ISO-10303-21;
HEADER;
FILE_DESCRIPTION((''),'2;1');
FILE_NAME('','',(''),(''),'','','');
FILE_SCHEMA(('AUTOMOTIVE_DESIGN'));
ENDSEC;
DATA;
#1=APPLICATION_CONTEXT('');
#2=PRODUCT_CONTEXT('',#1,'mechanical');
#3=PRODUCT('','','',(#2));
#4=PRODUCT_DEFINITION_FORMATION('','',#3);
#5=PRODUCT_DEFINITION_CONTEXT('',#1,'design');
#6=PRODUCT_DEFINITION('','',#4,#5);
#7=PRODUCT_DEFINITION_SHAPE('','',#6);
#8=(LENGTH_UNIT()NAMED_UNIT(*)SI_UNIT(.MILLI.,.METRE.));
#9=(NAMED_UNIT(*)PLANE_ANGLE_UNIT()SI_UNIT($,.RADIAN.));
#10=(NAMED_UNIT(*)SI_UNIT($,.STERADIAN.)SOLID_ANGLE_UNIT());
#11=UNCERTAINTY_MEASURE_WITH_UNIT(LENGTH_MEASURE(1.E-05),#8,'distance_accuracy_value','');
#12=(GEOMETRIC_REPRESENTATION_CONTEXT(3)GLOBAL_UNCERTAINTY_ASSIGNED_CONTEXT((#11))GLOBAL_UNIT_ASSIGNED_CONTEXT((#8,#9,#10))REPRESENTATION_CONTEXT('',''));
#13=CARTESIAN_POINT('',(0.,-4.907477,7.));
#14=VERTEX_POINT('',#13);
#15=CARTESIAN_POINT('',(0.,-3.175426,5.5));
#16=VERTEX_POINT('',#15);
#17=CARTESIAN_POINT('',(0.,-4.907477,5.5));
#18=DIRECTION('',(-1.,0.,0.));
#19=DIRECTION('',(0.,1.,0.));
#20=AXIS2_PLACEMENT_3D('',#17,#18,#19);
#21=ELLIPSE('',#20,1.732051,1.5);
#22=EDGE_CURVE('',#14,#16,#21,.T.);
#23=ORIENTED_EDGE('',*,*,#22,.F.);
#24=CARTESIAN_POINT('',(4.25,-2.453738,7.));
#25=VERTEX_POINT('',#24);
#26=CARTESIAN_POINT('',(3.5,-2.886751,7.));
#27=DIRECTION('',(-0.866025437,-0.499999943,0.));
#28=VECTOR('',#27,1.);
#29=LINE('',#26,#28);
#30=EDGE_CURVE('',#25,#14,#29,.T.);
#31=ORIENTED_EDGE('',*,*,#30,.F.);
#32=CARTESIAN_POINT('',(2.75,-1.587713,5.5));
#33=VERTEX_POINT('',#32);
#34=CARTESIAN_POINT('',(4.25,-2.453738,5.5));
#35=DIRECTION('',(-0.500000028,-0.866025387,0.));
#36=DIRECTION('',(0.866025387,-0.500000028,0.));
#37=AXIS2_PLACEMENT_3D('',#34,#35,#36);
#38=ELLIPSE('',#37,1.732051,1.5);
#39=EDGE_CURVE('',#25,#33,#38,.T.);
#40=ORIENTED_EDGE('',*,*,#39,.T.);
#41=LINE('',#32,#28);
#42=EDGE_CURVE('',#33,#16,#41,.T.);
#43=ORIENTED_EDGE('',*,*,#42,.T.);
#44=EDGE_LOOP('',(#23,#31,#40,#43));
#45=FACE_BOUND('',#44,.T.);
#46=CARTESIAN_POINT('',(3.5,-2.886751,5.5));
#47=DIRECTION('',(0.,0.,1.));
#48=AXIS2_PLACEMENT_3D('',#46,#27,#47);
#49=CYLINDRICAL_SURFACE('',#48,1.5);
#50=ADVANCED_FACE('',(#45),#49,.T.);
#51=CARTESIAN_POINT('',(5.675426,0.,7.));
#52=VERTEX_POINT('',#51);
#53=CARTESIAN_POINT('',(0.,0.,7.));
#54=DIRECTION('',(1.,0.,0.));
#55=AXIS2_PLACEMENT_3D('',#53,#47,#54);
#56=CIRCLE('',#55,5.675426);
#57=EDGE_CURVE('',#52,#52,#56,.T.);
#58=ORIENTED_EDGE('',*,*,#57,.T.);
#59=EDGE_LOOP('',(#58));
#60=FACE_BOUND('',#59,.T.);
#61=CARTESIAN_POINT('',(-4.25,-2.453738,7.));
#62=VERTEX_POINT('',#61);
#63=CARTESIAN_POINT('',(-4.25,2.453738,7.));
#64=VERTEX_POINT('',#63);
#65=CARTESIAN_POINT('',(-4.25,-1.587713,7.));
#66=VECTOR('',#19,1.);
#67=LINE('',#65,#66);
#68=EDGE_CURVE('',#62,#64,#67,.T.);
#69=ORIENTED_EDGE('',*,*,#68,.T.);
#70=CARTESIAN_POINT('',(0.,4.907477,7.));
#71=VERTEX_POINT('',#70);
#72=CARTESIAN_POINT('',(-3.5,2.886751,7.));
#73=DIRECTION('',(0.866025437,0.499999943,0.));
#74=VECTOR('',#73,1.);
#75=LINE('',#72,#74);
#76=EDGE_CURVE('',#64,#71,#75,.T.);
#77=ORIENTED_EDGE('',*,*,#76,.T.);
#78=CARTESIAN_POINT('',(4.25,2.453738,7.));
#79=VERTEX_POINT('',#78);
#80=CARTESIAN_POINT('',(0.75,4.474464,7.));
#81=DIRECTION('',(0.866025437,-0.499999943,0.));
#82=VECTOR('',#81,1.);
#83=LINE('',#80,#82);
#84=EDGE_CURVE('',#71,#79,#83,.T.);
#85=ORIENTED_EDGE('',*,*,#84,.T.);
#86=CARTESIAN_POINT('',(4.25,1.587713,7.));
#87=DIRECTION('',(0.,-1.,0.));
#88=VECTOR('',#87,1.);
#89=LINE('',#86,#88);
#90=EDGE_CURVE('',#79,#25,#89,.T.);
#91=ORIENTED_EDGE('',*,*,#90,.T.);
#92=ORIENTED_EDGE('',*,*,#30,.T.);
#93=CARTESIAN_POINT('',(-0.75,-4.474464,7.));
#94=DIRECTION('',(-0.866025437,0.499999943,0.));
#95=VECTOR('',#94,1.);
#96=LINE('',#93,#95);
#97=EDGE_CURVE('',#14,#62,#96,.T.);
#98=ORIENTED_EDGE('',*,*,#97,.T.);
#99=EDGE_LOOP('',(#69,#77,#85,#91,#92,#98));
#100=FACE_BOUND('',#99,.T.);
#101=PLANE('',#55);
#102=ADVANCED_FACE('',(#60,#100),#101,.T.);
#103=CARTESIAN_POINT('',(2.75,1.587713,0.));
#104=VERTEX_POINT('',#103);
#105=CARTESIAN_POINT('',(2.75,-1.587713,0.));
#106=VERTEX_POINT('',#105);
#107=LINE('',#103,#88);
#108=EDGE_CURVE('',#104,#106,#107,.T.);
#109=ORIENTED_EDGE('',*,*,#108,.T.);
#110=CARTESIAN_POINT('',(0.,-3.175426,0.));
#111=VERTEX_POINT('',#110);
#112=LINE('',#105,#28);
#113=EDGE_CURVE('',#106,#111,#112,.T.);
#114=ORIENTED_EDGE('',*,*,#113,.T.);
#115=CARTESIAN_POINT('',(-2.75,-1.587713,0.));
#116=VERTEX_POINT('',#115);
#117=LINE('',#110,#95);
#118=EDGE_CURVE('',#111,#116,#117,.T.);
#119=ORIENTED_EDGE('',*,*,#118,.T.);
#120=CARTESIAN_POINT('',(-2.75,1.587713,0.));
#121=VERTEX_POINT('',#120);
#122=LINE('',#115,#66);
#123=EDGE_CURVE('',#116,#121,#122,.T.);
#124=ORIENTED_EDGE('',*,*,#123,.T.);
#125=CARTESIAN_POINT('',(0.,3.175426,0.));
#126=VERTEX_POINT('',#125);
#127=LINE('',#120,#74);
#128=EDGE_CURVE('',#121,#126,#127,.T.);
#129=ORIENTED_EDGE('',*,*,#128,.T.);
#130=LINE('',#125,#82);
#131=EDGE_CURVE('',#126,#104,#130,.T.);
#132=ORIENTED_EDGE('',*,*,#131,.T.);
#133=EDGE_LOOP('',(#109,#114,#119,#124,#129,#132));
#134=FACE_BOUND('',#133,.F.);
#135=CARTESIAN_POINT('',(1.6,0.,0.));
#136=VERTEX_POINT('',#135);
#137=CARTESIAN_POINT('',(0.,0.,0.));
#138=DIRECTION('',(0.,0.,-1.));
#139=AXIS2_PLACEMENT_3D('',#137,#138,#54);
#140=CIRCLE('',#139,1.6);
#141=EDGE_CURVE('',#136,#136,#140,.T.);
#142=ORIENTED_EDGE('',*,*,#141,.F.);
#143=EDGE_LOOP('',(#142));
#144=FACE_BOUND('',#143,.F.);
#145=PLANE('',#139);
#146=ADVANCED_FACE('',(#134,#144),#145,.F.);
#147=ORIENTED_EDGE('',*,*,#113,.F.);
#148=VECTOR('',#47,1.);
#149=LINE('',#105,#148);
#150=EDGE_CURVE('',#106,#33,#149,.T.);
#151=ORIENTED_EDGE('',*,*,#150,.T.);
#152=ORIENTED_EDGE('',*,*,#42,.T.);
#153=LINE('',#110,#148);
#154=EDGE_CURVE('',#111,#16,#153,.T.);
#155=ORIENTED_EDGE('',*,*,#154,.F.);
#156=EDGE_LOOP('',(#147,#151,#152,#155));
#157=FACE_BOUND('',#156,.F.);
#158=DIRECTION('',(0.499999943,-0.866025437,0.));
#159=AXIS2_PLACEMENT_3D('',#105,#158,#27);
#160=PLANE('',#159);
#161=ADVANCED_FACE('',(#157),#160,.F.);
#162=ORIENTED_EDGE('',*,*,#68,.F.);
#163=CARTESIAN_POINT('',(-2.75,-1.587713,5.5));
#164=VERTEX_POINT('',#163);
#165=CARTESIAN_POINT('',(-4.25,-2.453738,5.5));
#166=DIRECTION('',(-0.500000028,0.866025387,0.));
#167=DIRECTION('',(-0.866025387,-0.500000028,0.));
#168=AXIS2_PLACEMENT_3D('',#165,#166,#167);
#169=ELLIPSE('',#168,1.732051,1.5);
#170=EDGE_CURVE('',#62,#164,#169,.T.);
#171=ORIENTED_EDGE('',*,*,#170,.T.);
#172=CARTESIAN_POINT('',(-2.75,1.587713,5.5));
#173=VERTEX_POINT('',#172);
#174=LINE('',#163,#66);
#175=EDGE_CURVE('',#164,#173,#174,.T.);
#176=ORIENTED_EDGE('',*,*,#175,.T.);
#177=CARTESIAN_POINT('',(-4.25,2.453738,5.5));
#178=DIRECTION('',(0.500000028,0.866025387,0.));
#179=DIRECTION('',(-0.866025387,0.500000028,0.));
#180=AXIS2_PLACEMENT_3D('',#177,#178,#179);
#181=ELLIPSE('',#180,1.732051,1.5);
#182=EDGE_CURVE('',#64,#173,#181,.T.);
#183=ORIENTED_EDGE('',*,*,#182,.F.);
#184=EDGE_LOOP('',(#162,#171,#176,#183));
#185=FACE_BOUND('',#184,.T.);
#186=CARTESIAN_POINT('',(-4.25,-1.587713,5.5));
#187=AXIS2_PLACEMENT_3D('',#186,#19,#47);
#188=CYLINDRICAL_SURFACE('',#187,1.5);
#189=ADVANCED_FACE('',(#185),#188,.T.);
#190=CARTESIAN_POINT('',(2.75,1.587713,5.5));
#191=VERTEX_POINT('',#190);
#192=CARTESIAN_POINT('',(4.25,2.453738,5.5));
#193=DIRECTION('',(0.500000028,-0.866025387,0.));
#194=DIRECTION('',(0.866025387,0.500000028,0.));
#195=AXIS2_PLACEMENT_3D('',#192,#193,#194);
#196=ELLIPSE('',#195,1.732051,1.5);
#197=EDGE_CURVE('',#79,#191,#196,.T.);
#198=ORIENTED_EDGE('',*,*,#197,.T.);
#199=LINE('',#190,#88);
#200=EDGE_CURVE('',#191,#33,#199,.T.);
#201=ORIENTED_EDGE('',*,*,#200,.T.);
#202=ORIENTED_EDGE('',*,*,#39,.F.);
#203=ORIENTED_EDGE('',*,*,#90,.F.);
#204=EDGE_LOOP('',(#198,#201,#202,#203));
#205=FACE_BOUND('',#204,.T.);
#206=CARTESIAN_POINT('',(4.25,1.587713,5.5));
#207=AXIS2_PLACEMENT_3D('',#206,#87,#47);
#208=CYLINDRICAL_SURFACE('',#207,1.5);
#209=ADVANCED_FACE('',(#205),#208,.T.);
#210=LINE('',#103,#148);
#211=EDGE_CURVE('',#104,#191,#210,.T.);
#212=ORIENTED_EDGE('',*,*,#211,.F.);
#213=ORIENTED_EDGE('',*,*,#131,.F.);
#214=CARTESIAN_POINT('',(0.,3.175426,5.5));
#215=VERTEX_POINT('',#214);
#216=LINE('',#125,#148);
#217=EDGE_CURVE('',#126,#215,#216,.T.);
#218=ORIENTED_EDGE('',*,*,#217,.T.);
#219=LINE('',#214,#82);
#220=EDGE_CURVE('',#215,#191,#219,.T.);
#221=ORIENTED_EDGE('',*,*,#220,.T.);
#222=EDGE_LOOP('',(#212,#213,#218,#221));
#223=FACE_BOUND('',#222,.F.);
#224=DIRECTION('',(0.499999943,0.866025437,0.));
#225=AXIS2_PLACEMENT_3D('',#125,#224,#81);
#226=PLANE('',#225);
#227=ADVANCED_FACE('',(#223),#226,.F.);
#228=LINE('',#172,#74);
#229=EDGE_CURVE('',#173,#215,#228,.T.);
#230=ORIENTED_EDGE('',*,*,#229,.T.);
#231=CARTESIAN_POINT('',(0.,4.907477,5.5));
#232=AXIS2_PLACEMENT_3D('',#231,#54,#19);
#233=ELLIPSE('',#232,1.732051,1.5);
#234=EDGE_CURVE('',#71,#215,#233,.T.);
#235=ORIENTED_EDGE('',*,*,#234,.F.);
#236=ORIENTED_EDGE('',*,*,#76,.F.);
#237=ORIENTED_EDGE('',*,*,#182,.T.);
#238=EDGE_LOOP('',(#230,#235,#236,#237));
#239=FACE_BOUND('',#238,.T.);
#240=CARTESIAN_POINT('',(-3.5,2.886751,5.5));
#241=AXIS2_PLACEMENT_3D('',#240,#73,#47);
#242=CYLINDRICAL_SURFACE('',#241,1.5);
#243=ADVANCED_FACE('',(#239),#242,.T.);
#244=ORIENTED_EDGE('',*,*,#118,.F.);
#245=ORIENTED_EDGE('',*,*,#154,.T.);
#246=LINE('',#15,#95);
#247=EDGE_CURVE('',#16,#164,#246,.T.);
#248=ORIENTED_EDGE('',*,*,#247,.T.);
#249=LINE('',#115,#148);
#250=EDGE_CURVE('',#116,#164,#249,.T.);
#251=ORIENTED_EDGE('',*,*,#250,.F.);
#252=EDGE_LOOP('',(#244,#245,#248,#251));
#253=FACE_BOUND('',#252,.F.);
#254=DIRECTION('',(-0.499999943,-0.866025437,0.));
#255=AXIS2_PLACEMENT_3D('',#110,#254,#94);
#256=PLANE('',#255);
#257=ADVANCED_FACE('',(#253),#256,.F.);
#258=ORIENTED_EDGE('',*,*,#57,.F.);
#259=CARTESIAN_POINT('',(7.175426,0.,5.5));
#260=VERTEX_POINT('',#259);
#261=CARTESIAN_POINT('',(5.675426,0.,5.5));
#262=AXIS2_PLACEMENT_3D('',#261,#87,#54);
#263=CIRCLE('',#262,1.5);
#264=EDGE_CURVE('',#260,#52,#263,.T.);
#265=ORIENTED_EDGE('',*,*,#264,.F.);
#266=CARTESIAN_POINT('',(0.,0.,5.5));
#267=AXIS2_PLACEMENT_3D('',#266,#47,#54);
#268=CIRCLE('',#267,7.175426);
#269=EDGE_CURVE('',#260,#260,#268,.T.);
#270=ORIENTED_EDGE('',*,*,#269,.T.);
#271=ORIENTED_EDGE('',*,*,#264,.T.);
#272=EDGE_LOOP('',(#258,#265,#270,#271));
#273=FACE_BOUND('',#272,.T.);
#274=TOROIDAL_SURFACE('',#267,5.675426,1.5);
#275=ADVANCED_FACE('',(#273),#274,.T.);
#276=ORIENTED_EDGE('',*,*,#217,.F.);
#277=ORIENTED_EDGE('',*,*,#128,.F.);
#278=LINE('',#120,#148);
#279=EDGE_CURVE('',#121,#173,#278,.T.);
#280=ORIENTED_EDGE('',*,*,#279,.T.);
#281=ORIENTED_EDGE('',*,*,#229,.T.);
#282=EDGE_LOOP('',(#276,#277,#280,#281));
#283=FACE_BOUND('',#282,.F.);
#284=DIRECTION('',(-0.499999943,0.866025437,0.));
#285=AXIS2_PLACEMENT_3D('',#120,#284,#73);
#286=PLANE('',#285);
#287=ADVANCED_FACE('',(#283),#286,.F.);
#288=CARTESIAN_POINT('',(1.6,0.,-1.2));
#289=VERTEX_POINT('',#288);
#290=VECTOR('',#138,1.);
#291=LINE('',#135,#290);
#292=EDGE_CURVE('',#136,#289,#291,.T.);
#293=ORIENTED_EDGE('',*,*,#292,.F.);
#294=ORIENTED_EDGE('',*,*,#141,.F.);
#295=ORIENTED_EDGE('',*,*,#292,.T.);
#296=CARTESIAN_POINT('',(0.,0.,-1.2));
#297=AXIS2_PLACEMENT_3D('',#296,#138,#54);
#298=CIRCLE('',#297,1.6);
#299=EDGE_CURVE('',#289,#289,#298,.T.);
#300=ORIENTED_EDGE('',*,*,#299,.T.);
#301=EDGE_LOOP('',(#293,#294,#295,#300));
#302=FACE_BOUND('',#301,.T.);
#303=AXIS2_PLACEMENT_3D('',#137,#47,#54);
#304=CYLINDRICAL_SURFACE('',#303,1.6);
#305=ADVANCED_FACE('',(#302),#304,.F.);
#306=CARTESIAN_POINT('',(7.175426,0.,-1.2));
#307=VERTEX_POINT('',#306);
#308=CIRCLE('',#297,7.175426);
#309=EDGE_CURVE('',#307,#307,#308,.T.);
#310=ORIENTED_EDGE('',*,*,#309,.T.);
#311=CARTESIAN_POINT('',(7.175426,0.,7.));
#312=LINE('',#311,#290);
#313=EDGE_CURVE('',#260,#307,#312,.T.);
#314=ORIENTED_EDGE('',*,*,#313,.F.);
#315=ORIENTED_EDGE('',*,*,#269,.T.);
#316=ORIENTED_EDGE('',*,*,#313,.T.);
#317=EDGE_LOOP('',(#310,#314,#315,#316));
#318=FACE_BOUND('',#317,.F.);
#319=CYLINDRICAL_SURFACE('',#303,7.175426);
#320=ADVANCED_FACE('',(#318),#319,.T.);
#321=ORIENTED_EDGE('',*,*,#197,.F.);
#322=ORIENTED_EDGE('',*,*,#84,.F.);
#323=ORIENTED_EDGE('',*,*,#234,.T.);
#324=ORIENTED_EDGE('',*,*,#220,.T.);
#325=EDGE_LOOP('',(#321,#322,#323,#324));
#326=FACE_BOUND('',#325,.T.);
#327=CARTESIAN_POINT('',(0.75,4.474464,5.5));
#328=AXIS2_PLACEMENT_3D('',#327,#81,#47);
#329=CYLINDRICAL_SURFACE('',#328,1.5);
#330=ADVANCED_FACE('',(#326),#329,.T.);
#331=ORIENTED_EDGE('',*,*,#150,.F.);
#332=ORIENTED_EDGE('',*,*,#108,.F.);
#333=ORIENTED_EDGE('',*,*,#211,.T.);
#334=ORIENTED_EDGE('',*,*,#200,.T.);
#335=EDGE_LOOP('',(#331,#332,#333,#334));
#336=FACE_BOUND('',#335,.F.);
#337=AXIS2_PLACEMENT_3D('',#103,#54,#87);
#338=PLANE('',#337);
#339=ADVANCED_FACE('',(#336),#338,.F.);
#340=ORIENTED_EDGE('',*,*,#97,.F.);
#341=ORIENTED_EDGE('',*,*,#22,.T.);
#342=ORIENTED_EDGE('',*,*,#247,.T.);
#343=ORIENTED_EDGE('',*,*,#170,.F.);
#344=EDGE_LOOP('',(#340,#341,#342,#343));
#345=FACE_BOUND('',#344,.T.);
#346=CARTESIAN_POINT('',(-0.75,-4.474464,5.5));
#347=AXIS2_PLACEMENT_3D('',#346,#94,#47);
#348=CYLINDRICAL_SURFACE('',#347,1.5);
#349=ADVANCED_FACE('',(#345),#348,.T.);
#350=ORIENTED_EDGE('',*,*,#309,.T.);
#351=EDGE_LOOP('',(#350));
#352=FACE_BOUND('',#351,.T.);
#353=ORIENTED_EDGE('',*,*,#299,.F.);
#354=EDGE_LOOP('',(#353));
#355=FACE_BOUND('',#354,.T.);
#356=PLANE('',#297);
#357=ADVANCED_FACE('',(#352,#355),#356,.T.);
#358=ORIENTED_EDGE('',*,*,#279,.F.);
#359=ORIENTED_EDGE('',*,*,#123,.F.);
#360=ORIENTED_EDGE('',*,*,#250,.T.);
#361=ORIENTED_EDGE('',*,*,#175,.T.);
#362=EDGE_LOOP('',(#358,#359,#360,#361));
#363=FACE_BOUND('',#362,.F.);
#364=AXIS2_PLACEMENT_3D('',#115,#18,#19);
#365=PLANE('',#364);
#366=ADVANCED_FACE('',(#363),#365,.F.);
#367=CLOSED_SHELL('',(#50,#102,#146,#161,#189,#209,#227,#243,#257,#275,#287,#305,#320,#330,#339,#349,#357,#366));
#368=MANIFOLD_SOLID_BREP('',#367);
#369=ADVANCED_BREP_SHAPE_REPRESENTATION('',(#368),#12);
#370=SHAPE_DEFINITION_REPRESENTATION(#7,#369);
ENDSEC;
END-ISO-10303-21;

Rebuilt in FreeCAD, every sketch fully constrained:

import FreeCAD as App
import Part
import Sketcher
Q = App.Units.Quantity


def edges_at(feature, points):
    """Names of the edges that pass closest to the given points."""
    edges = feature.Shape.Edges
    near = lambda p: min(range(len(edges)), key=lambda i: edges[i].distToShape(Part.Vertex(*p))[0])
    return sorted({f"Edge{near(p) + 1}" for p in points})


def add_polygon(sketch, points):
    """Adds a closed chain of lines whose ends are joined by coincident constraints."""
    first, n = sketch.GeometryCount, len(points)
    for a, b in zip(points, points[1:] + points[:1]):
        sketch.addGeometry(Part.LineSegment(App.Vector(*a, 0), App.Vector(*b, 0)), False)
    for i in range(n):
        sketch.addConstraint(Sketcher.Constraint("Coincident", first + i, 2, first + (i + 1) % n, 1))

doc = App.newDocument("Part")
body = doc.addObject("PartDesign::Body", "Body")

sketch1 = doc.addObject("Sketcher::SketchObject", "Sketch")
body.addObject(sketch1)
sketch1.AttachmentSupport = (doc.XY_Plane, [""])
sketch1.MapMode = "FlatFace"
sketch1.addGeometry(Part.Circle(App.Vector(0, 0, 0), App.Vector(0, 0, 1), 7.2), False)
add_polygon(sketch1, [(2.8, -1.6), (0, -3.2), (-2.8, -1.6), (-2.8, 1.6), (0, 3.2), (2.8, 1.6)])
sketch1.addConstraint([
    Sketcher.Constraint("Vertical", 3),
    Sketcher.Constraint("Vertical", 6),
    Sketcher.Constraint("Coincident", 0, 3, -1, 1),
    Sketcher.Constraint("Symmetric", 1, 2, 4, 2, -1, 1),
    Sketcher.Constraint("Symmetric", 2, 2, 5, 2, -1, 1),
    Sketcher.Constraint("PointOnObject", 1, 2, -2),
    Sketcher.Constraint("Parallel", 1, 4),
    Sketcher.Constraint("Horizontal", 3, 2, 5, 2),
    Sketcher.Constraint("Angle", 1, Q("-150.000004 deg")),
    Sketcher.Constraint("DistanceX", 3, 2, 5, 2, Q("5.5 mm")),
    Sketcher.Constraint("Diameter", 0, Q("14.350852 mm")),
    Sketcher.Constraint("DistanceY", 3, 1, 3, 2, Q("3.175426 mm")),
])
pad1 = doc.addObject("PartDesign::Pad", "Pad")
body.addObject(pad1)
pad1.Profile = sketch1
pad1.Length = 7

sketch2 = doc.addObject("Sketcher::SketchObject", "Sketch001")
body.addObject(sketch2)
sketch2.AttachmentSupport = (doc.XY_Plane, [""])
sketch2.MapMode = "FlatFace"
sketch2.addGeometry([
    Part.Circle(App.Vector(0, 0, 0), App.Vector(0, 0, 1), 7.2),
    Part.Circle(App.Vector(0, 0, 0), App.Vector(0, 0, 1), 1.6),
], False)
sketch2.addConstraint([
    Sketcher.Constraint("Coincident", 0, 3, -1, 1),
    Sketcher.Constraint("Coincident", 1, 3, -1, 1),
    Sketcher.Constraint("Diameter", 1, Q("3.2 mm")),
    Sketcher.Constraint("Diameter", 0, Q("14.350852 mm")),
])
pad2 = doc.addObject("PartDesign::Pad", "Pad001")
body.addObject(pad2)
pad2.Profile = sketch2
pad2.Length = 1.2
pad2.Reversed = True
doc.recompute()

fillet = doc.addObject("PartDesign::Fillet", "Fillet")
body.addObject(fillet)
fillet.Base = (pad2, edges_at(pad2, [
    (-7.175, 0, 7),
    (-1.375, -2.382, 7),
    (-2.75, 0, 7),
    (-1.375, 2.382, 7),
    (1.375, 2.382, 7),
    (2.75, 0, 7),
    (1.375, -2.382, 7),
]))
fillet.Radius = 1.5

doc.recompute()
